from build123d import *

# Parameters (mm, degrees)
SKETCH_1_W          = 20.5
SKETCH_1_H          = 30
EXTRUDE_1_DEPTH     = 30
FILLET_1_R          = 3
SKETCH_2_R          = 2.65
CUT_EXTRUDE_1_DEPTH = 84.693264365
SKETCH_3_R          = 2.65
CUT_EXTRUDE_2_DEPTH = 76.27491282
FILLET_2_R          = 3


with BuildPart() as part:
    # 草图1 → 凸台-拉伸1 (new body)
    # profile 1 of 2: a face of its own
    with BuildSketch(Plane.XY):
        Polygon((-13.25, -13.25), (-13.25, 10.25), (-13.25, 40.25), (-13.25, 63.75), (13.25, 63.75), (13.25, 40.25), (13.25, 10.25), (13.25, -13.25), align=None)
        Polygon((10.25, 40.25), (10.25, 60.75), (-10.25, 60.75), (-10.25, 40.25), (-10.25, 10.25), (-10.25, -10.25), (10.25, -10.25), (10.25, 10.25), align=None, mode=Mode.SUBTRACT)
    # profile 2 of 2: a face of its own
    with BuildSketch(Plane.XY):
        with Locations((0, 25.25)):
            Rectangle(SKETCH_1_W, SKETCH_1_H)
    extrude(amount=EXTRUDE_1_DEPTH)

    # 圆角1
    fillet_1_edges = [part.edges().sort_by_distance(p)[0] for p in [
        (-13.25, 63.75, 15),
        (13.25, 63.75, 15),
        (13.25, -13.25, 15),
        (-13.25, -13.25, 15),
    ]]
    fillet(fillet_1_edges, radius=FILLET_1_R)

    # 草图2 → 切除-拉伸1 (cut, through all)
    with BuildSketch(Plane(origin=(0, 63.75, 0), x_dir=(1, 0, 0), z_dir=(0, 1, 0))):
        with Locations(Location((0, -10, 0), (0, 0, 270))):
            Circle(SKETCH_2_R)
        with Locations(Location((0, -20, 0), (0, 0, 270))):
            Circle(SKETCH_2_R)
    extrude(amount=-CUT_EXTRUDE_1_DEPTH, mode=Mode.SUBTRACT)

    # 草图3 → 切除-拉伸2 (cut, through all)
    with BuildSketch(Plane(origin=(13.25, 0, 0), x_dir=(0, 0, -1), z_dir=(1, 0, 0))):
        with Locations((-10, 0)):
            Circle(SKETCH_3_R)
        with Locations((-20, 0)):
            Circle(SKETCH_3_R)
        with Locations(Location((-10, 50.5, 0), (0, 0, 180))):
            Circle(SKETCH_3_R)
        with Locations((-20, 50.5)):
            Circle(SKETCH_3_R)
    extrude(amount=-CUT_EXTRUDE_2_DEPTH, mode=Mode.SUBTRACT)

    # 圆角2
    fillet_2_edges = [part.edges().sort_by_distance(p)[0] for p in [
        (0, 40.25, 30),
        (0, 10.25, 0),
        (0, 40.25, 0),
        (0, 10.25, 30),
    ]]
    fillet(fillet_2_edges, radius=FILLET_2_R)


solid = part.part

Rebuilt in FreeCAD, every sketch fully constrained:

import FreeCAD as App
import Part
import Sketcher
from FreeCAD import Vector
Q = App.Units.Quantity


def edges_at(feature, points):
    """Names of the edges that pass closest to the given points."""
    edges = feature.Shape.Edges
    near = lambda p: min(range(len(edges)), key=lambda i: edges[i].distToShape(Part.Vertex(*p))[0])
    return sorted({f"Edge{near(p) + 1}" for p in points})

doc = App.newDocument("Part")
body = doc.addObject("PartDesign::Body", "Body")

# Sketch on XY plane
sketch1 = body.newObject("Sketcher::SketchObject", "Sketch")
sketch1.AttachmentSupport = (doc.getObject("XY_Plane"), [""])
sketch1.MapMode = "FlatFace"
sketch1.addGeometry(Part.LineSegment(Vector(-13.25, 63.75, 0), Vector(-13.25, -13.25, 0)), False)
sketch1.addGeometry(Part.LineSegment(Vector(-13.25, -13.25, 0), Vector(13.25, -13.25, 0)), False)
sketch1.addGeometry(Part.LineSegment(Vector(13.25, -13.25, 0), Vector(13.25, 63.75, 0)), False)
sketch1.addGeometry(Part.LineSegment(Vector(13.25, 63.75, 0), Vector(-13.25, 63.75, 0)), False)
sketch1.addGeometry(Part.LineSegment(Vector(10.25, -10.25, 0), Vector(-10.25, -10.25, 0)), False)
sketch1.addGeometry(Part.LineSegment(Vector(-10.25, -10.25, 0), Vector(-10.25, 10.25, 0)), False)
sketch1.addGeometry(Part.LineSegment(Vector(-10.25, 10.25, 0), Vector(10.25, 10.25, 0)), False)
sketch1.addGeometry(Part.LineSegment(Vector(10.25, 10.25, 0), Vector(10.25, -10.25, 0)), False)
sketch1.addGeometry(Part.LineSegment(Vector(10.25, 60.75, 0), Vector(10.25, 40.25, 0)), False)
sketch1.addGeometry(Part.LineSegment(Vector(10.25, 40.25, 0), Vector(-10.25, 40.25, 0)), False)
sketch1.addGeometry(Part.LineSegment(Vector(-10.25, 40.25, 0), Vector(-10.25, 60.75, 0)), False)
sketch1.addGeometry(Part.LineSegment(Vector(-10.25, 60.75, 0), Vector(10.25, 60.75, 0)), False)
sketch1.addConstraint(Sketcher.Constraint("Coincident", 0, 2, 1, 1))
sketch1.addConstraint(Sketcher.Constraint("Coincident", 1, 2, 2, 1))
sketch1.addConstraint(Sketcher.Constraint("Coincident", 2, 2, 3, 1))
sketch1.addConstraint(Sketcher.Constraint("Coincident", 3, 2, 0, 1))
sketch1.addConstraint(Sketcher.Constraint("Coincident", 4, 2, 5, 1))
sketch1.addConstraint(Sketcher.Constraint("Coincident", 5, 2, 6, 1))
sketch1.addConstraint(Sketcher.Constraint("Coincident", 6, 2, 7, 1))
sketch1.addConstraint(Sketcher.Constraint("Coincident", 7, 2, 4, 1))
sketch1.addConstraint(Sketcher.Constraint("Coincident", 8, 2, 9, 1))
sketch1.addConstraint(Sketcher.Constraint("Coincident", 9, 2, 10, 1))
sketch1.addConstraint(Sketcher.Constraint("Coincident", 10, 2, 11, 1))
sketch1.addConstraint(Sketcher.Constraint("Coincident", 11, 2, 8, 1))
sketch1.addConstraint(Sketcher.Constraint("Vertical", 0))
sketch1.addConstraint(Sketcher.Constraint("Horizontal", 1))
sketch1.addConstraint(Sketcher.Constraint("Vertical", 2))
sketch1.addConstraint(Sketcher.Constraint("Horizontal", 3))
sketch1.addConstraint(Sketcher.Constraint("Horizontal", 4))
sketch1.addConstraint(Sketcher.Constraint("Vertical", 5))
sketch1.addConstraint(Sketcher.Constraint("Horizontal", 6))
sketch1.addConstraint(Sketcher.Constraint("Vertical", 7))
sketch1.addConstraint(Sketcher.Constraint("Vertical", 8))
sketch1.addConstraint(Sketcher.Constraint("Horizontal", 9))
sketch1.addConstraint(Sketcher.Constraint("Vertical", 10))
sketch1.addConstraint(Sketcher.Constraint("Horizontal", 11))
sketch1.addConstraint(Sketcher.Constraint("Symmetric", 4, 2, 6, 2, -1, 1))
sketch1.addConstraint(Sketcher.Constraint("Vertical", 7, 2, 8, 2))
sketch1.addConstraint(Sketcher.Constraint("Vertical", 5, 2, 9, 2))
sketch1.addConstraint(Sketcher.Constraint("Equal", 11, 5))
sketch1.addConstraint(Sketcher.Constraint("Equal", 7, 8))
sketch1.addConstraint(Sketcher.Constraint("DistanceY", 0, 2, 0, 1, Q("77 mm")))
sketch1.addConstraint(Sketcher.Constraint("DistanceX", 1, 1, 1, 2, Q("26.5 mm")))
sketch1.addConstraint(Sketcher.Constraint("DistanceX", 4, 2, 4, 1, Q("20.5 mm")))
sketch1.addConstraint(Sketcher.Constraint("DistanceX", 0, 2, 4, 2, Q("3 mm")))
sketch1.addConstraint(Sketcher.Constraint("DistanceY", 0, 2, 4, 2, Q("3 mm")))
sketch1.addConstraint(Sketcher.Constraint("DistanceY", 6, 2, 8, 2, Q("30 mm")))
pad1 = body.newObject("PartDesign::Pad", "Pad")
pad1.Profile = sketch1
pad1.Length = 30
doc.recompute()

fillet = body.newObject("PartDesign::Fillet", "Fillet")
fillet.Base = (pad1, edges_at(pad1, [
    (-13.25, 63.75, 15),
    (13.25, 63.75, 15),
    (13.25, -13.25, 15),
    (-13.25, -13.25, 15),
]))
fillet.Radius = 3

# Sketch on XZ plane
sketch2 = body.newObject("Sketcher::SketchObject", "Sketch001")
sketch2.AttachmentSupport = (doc.getObject("XZ_Plane"), [""])
sketch2.MapMode = "FlatFace"
sketch2.AttachmentOffset = App.Placement(Vector(0, 0, -63.75), App.Rotation())
sketch2.addGeometry(Part.Circle(Vector(0, 10, 0), Vector(0, 0, 1), 2.65), False)
sketch2.addGeometry(Part.Circle(Vector(0, 20, 0), Vector(0, 0, 1), 2.65), False)
sketch2.addConstraint(Sketcher.Constraint("Equal", 0, 1))
sketch2.addConstraint(Sketcher.Constraint("PointOnObject", 0, 3, -2))
sketch2.addConstraint(Sketcher.Constraint("PointOnObject", 1, 3, -2))
sketch2.addConstraint(Sketcher.Constraint("Diameter", 0, Q("5.3 mm")))
sketch2.addConstraint(Sketcher.Constraint("DistanceY", -1, 1, 0, 3, Q("10 mm")))
sketch2.addConstraint(Sketcher.Constraint("DistanceY", -1, 1, 1, 3, Q("20 mm")))
pocket1 = body.newObject("PartDesign::Pocket", "Pocket")
pocket1.Profile = sketch2
pocket1.Type = "ThroughAll"
pocket1.Reversed = True

# Sketch on YZ plane
sketch3 = body.newObject("Sketcher::SketchObject", "Sketch002")
sketch3.AttachmentSupport = (doc.getObject("YZ_Plane"), [""])
sketch3.MapMode = "FlatFace"
sketch3.AttachmentOffset = App.Placement(Vector(0, 0, 13.25), App.Rotation())
sketch3.addGeometry(Part.Circle(Vector(0, 10, 0), Vector(0, 0, 1), 2.65), False)
sketch3.addGeometry(Part.Circle(Vector(0, 20, 0), Vector(0, 0, 1), 2.65), False)
sketch3.addGeometry(Part.Circle(Vector(50.5, 10, 0), Vector(0, 0, 1), 2.65), False)
sketch3.addGeometry(Part.Circle(Vector(50.5, 20, 0), Vector(0, 0, 1), 2.65), False)
sketch3.addConstraint(Sketcher.Constraint("Equal", 0, 1))
sketch3.addConstraint(Sketcher.Constraint("Equal", 1, 2))
sketch3.addConstraint(Sketcher.Constraint("Equal", 2, 3))
sketch3.addConstraint(Sketcher.Constraint("PointOnObject", 0, 3, -2))
sketch3.addConstraint(Sketcher.Constraint("PointOnObject", 1, 3, -2))
sketch3.addConstraint(Sketcher.Constraint("Horizontal", 0, 3, 2, 3))
sketch3.addConstraint(Sketcher.Constraint("Horizontal", 1, 3, 3, 3))
sketch3.addConstraint(Sketcher.Constraint("Vertical", 2, 3, 3, 3))
sketch3.addConstraint(Sketcher.Constraint("Diameter", 0, Q("5.3 mm")))
sketch3.addConstraint(Sketcher.Constraint("DistanceY", -1, 1, 0, 3, Q("10 mm")))
sketch3.addConstraint(Sketcher.Constraint("DistanceY", -1, 1, 1, 3, Q("20 mm")))
sketch3.addConstraint(Sketcher.Constraint("DistanceX", -1, 1, 2, 3, Q("50.5 mm")))
pocket2 = body.newObject("PartDesign::Pocket", "Pocket001")
pocket2.Profile = sketch3
pocket2.Type = "ThroughAll"
doc.recompute()

fillet2 = body.newObject("PartDesign::Fillet", "Fillet001")
fillet2.Base = (pocket2, edges_at(pocket2, [
    (0, 40.25, 30),
    (0, 10.25, 0),
    (0, 40.25, 0),
    (0, 10.25, 30),
]))
fillet2.Radius = 3

doc.recompute()
